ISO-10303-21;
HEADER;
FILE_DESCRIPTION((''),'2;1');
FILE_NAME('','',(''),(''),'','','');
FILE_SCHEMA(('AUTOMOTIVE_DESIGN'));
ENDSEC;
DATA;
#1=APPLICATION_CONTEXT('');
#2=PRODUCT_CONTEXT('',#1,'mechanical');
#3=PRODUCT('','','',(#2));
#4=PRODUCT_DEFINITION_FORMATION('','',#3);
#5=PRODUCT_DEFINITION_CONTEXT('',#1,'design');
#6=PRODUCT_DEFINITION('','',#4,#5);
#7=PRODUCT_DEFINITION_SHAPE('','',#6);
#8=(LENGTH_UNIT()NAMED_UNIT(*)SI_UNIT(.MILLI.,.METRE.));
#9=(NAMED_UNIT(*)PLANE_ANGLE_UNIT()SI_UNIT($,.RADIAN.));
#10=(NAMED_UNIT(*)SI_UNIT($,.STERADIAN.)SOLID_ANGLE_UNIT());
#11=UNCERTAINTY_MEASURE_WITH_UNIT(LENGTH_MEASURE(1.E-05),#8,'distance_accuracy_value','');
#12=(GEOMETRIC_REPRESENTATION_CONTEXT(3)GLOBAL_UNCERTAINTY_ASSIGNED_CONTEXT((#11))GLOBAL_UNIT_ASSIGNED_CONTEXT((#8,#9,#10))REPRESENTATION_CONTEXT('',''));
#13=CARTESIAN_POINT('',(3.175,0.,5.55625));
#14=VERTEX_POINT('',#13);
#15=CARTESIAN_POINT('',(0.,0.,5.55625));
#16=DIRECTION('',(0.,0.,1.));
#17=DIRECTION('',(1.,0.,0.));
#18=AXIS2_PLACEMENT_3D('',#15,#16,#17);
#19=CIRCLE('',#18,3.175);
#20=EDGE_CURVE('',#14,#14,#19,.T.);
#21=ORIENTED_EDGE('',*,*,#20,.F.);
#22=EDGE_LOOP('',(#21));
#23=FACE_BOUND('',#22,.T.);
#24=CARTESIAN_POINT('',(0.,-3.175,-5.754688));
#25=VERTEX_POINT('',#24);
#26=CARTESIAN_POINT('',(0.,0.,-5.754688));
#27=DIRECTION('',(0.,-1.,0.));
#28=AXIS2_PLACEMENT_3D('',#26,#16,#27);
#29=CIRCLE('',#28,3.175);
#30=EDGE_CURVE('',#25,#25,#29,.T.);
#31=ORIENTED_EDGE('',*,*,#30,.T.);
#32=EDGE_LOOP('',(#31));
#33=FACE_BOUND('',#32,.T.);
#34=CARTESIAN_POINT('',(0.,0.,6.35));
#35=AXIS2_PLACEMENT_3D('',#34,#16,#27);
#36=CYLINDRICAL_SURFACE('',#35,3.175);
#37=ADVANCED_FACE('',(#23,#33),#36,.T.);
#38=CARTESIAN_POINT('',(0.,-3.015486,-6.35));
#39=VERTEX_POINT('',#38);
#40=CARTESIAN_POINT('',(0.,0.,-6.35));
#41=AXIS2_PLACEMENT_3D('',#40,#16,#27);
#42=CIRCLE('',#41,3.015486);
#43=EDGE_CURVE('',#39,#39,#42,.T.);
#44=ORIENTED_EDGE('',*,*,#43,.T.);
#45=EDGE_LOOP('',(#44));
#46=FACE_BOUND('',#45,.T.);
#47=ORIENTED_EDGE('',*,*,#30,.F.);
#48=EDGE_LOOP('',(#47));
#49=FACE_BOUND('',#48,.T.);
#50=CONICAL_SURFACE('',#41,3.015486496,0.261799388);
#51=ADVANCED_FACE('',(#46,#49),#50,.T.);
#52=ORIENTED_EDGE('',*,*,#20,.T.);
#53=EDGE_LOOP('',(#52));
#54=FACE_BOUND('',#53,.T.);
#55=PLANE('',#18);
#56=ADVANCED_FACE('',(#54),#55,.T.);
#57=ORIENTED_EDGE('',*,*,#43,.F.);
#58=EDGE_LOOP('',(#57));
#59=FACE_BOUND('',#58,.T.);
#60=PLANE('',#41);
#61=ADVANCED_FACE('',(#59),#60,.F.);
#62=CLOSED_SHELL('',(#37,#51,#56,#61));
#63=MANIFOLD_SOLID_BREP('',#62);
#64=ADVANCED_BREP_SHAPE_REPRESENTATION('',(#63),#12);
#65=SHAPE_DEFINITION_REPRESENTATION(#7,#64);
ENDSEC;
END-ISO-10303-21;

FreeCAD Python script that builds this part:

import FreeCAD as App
import Part
import Sketcher
Q = App.Units.Quantity

doc = App.newDocument("Part")
params = doc.addObject("Spreadsheet::Sheet", "Params")
for row, (alias, value) in enumerate([
    ("sketch1_height", "0.5 in"),
    ("sketch1_width", "0.09375 in"),
    ("revolution_angle", "360 deg"),
    ("sketch2_diameter", "0.25 in"),
    ("pocket1_length", "0.03125 in"),
], start=1):
    params.set(f"A{row}", alias)
    params.set(f"B{row}", "=" + value)
    params.setAlias(f"B{row}", alias)

body = doc.addObject("PartDesign::Body", "Body")

# Sketch on YZ plane
sketch1 = doc.addObject("Sketcher::SketchObject", "Sketch")
body.addObject(sketch1)
sketch1.AttachmentSupport = (doc.YZ_Plane, [""])
sketch1.MapMode = "FlatFace"
sketch1.addGeometry([
    Part.LineSegment(App.Vector(3.2, 5.6, 0), App.Vector(2.4, 6.3, 0)),  # 0
    Part.LineSegment(App.Vector(2.4, 6.3, 0), App.Vector(0, 6.3, 0)),  # 1
    Part.LineSegment(App.Vector(0, 6.3, 0), App.Vector(0, -6.3, 0)),  # 2
    Part.LineSegment(App.Vector(0, -6.3, 0), App.Vector(3, -6.3, 0)),  # 3
    Part.LineSegment(App.Vector(3, -6.3, 0), App.Vector(3.2, -5.8, 0)),  # 4
    Part.LineSegment(App.Vector(3.2, -5.8, 0), App.Vector(3.2, 5.6, 0)),  # 5
], False)
sketch1.addConstraint([
    Sketcher.Constraint("Coincident", 0, 2, 1, 1),
    Sketcher.Constraint("Coincident", 1, 2, 2, 1),
    Sketcher.Constraint("Coincident", 2, 2, 3, 1),
    Sketcher.Constraint("Coincident", 3, 2, 4, 1),
    Sketcher.Constraint("Coincident", 4, 2, 5, 1),
    Sketcher.Constraint("Coincident", 5, 2, 0, 1),
    Sketcher.Constraint("Horizontal", 1),
    Sketcher.Constraint("Vertical", 2),
    Sketcher.Constraint("Horizontal", 3),
    Sketcher.Constraint("Vertical", 5),
    Sketcher.Constraint("Symmetric", 1, 2, 2, 2, -1, 1),
    Sketcher.Constraint("DistanceY", 2, 2, 2, 1, Q("0.5 in")),
    Sketcher.Constraint("Angle", 0, Q("135 deg")),
    Sketcher.Constraint("Angle", 4, Q("75 deg")),
    Sketcher.Constraint("DistanceX", 1, 2, 1, 1, Q("0.09375 in")),
    Sketcher.Constraint("DistanceX", -1, 1, 4, 2, Q("0.125 in")),
    Sketcher.Constraint("DistanceX", 3, 1, 3, 2, 3.015486),
])
sketch1.setExpression("Constraints[11]", "Params.sketch1_height")
sketch1.setExpression("Constraints[14]", "Params.sketch1_width")
revolution = doc.addObject("PartDesign::Revolution", "Revolution")
body.addObject(revolution)
revolution.Profile = sketch1
revolution.ReferenceAxis = (sketch1, ["V_Axis"])
revolution.setExpression("Angle", "Params.revolution_angle")

# Sketch on XY plane
sketch2 = doc.addObject("Sketcher::SketchObject", "Sketch001")
body.addObject(sketch2)
sketch2.AttachmentSupport = (doc.XY_Plane, [""])
sketch2.MapMode = "FlatFace"
sketch2.AttachmentOffset = App.Placement(App.Vector(0, 0, 0.21875 * 25.4), App.Rotation())
sketch2.addGeometry(Part.Circle(App.Vector(0, 0, 0), App.Vector(0, 0, 1), 3.2), False)
sketch2.addConstraint([
    Sketcher.Constraint("Coincident", 0, 3, -1, 1),
    Sketcher.Constraint("Diameter", 0, Q("0.25 in")),
])
sketch2.setExpression("Constraints[1]", "Params.sketch2_diameter")
pocket1 = doc.addObject("PartDesign::Pocket", "Pocket")
body.addObject(pocket1)
pocket1.Profile = sketch2
pocket1.setExpression("Length", "Params.pocket1_length")
pocket1.Reversed = True

doc.recompute()
